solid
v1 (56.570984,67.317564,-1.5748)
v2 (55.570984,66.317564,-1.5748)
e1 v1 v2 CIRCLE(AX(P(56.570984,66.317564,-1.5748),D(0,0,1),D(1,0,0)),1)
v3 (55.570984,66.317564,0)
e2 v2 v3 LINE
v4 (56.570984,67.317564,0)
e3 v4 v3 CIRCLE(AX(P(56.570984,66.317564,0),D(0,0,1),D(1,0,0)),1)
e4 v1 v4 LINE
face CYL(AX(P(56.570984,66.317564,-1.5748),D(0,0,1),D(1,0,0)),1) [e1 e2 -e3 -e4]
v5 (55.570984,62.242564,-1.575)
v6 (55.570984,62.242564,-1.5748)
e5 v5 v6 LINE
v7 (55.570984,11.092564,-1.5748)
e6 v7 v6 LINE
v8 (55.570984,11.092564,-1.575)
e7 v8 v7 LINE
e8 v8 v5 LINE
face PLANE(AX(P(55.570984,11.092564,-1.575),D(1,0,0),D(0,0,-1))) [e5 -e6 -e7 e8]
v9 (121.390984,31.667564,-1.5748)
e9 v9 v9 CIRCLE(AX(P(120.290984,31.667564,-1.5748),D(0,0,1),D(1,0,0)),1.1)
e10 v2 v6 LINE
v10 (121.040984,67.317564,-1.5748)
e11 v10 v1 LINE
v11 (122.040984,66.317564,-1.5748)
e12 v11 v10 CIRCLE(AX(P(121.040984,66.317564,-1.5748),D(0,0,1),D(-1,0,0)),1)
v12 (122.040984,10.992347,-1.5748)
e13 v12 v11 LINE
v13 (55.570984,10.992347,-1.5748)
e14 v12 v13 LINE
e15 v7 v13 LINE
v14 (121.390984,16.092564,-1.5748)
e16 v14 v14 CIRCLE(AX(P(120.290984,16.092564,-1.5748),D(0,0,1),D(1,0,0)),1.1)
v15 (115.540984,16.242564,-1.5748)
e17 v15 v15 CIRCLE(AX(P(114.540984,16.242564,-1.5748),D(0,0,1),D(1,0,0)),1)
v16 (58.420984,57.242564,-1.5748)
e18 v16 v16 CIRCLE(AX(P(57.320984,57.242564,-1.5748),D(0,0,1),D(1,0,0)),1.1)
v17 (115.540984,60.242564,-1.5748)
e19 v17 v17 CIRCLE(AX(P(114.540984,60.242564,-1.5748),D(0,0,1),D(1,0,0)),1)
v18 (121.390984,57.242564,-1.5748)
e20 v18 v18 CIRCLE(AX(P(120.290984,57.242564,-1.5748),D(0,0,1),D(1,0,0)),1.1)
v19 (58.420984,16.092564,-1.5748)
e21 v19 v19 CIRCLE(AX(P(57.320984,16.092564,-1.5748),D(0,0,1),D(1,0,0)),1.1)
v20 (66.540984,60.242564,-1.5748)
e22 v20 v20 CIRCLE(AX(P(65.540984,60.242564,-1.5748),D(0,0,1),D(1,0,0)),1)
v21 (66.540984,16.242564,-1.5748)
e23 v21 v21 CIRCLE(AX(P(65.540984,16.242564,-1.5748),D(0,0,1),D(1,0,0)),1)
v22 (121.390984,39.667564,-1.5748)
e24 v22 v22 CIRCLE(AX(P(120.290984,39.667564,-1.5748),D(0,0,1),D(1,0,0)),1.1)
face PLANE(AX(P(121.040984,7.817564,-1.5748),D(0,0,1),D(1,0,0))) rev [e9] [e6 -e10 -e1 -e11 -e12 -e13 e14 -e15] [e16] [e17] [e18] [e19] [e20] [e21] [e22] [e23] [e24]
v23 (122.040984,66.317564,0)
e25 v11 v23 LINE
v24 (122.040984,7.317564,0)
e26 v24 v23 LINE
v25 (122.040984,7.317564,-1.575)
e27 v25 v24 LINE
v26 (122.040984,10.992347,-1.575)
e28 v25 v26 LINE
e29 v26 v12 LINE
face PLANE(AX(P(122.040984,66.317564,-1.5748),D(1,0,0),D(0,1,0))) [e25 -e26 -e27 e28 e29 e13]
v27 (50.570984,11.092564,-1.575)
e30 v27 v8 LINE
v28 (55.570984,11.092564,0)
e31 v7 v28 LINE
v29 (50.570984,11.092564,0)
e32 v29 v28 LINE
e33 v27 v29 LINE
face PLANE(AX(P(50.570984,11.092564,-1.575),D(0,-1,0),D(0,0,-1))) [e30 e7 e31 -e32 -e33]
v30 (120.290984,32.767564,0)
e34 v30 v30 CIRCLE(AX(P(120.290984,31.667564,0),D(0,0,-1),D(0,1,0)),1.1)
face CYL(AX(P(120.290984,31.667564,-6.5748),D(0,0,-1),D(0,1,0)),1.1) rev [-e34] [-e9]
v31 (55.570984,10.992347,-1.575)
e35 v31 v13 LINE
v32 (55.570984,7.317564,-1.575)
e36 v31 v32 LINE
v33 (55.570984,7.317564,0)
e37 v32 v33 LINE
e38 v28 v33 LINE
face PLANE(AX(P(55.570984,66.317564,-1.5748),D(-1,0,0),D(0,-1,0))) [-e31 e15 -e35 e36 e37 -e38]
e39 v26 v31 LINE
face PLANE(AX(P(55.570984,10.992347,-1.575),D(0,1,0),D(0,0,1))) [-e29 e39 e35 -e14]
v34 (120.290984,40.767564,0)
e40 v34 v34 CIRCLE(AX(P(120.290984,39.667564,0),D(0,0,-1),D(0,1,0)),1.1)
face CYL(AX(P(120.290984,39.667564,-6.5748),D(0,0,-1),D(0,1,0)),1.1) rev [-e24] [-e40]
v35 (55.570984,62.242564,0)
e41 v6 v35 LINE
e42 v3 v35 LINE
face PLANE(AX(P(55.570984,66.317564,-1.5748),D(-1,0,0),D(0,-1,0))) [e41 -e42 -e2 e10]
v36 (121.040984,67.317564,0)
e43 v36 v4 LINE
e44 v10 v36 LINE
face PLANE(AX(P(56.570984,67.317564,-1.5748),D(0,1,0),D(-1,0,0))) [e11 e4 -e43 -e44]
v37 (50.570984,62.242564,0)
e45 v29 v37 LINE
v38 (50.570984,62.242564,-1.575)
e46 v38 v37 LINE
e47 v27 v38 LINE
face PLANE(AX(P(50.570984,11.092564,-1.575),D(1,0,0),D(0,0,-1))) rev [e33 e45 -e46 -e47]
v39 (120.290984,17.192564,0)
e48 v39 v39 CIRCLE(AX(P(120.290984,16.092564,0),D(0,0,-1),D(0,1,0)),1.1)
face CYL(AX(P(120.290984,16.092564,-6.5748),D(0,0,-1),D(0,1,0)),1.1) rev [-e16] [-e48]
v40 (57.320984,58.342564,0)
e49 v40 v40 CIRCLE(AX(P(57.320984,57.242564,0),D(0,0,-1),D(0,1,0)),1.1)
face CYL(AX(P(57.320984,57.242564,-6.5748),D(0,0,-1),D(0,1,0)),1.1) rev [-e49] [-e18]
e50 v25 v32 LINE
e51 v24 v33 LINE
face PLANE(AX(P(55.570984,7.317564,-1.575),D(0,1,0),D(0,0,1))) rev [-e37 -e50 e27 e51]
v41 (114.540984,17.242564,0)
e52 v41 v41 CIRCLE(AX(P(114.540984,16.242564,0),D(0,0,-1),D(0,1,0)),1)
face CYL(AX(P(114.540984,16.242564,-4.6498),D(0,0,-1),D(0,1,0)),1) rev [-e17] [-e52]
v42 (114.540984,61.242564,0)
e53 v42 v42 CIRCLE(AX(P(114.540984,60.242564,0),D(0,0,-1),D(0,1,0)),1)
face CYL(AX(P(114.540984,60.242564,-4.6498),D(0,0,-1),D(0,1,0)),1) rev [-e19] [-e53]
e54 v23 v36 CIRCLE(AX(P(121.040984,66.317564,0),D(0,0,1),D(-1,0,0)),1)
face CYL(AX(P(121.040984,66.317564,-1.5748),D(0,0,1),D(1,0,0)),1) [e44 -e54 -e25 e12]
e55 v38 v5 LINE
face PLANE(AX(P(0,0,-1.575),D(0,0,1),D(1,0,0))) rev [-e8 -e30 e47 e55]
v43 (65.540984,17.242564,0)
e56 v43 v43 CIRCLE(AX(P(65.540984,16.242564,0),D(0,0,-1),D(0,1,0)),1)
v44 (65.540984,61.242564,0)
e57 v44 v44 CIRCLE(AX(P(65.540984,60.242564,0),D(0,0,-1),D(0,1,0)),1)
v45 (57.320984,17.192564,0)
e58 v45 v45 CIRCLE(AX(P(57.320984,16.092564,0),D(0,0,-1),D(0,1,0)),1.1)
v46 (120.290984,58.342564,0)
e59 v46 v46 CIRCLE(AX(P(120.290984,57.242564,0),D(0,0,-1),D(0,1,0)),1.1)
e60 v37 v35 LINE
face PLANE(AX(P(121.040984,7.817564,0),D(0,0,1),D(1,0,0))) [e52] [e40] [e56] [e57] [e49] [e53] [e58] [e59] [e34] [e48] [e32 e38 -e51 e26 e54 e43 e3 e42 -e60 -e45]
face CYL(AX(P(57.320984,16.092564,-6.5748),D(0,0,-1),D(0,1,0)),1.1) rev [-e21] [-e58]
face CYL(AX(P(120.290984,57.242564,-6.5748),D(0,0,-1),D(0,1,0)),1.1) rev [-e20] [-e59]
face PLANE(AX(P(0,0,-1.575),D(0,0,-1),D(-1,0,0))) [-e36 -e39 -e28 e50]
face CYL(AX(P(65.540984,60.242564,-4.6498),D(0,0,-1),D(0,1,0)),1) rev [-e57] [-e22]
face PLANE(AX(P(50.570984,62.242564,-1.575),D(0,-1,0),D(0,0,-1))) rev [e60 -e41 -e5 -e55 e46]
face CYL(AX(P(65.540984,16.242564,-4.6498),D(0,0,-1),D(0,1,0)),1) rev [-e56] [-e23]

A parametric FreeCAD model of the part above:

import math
import FreeCAD as App
import Part
import Sketcher
Q = App.Units.Quantity


def add_polygon(sketch, points):
    """Adds a closed chain of lines whose ends are joined by coincident constraints."""
    first, n = sketch.GeometryCount, len(points)
    for a, b in zip(points, points[1:] + points[:1]):
        sketch.addGeometry(Part.LineSegment(App.Vector(*a, 0), App.Vector(*b, 0)), False)
    for i in range(n):
        sketch.addConstraint(Sketcher.Constraint("Coincident", first + i, 2, first + (i + 1) % n, 1))

doc = App.newDocument("Part")
body = doc.addObject("PartDesign::Body", "Body")

sketch1 = body.newObject("Sketcher::SketchObject", "Sketch")
sketch1.AttachmentSupport = (doc.getObject("XY_Plane"), [""])
sketch1.MapMode = "FlatFace"
sketch1.addGeometry(Part.LineSegment(App.Vector(121.040984, 67.317564, 0), App.Vector(56.570984, 67.317564, 0)), False)
sketch1.addGeometry(Part.ArcOfCircle(Part.Circle(App.Vector(56.570984, 66.317564, 0), App.Vector(0, 0, 1), 1), math.radians(90), math.radians(180)), False)
sketch1.addGeometry(Part.LineSegment(App.Vector(55.570984, 66.317564, 0), App.Vector(55.570984, 6.817564, 0)), False)
sketch1.addGeometry(Part.LineSegment(App.Vector(55.570984, 6.817564, 0), App.Vector(121.040984, 6.817564, 0)), False)
sketch1.addGeometry(Part.ArcOfCircle(Part.Circle(App.Vector(121.040984, 7.817564, 0), App.Vector(0, 0, 1), 1), math.radians(-90), math.radians(0)), False)
sketch1.addGeometry(Part.LineSegment(App.Vector(122.040984, 7.817564, 0), App.Vector(122.040984, 66.317564, 0)), False)
sketch1.addGeometry(Part.ArcOfCircle(Part.Circle(App.Vector(121.040984, 66.317564, 0), App.Vector(0, 0, 1), 1), math.radians(0), math.radians(90)), False)
sketch1.addConstraint(Sketcher.Constraint("Tangent", 0, 2, 1, 1))
sketch1.addConstraint(Sketcher.Constraint("Tangent", 1, 2, 2, 1))
sketch1.addConstraint(Sketcher.Constraint("Coincident", 2, 2, 3, 1))
sketch1.addConstraint(Sketcher.Constraint("Tangent", 3, 2, 4, 1))
sketch1.addConstraint(Sketcher.Constraint("Tangent", 4, 2, 5, 1))
sketch1.addConstraint(Sketcher.Constraint("Tangent", 5, 2, 6, 1))
sketch1.addConstraint(Sketcher.Constraint("Tangent", 6, 2, 0, 1))
sketch1.addConstraint(Sketcher.Constraint("Horizontal", 0))
sketch1.addConstraint(Sketcher.Constraint("Vertical", 2))
sketch1.addConstraint(Sketcher.Constraint("Horizontal", 3))
sketch1.addConstraint(Sketcher.Constraint("Vertical", 5))
sketch1.addConstraint(Sketcher.Constraint("Equal", 1, 4))
sketch1.addConstraint(Sketcher.Constraint("Equal", 4, 6))
sketch1.addConstraint(Sketcher.Constraint("Radius", 1, Q("1 mm")))
sketch1.addConstraint(Sketcher.Constraint("DistanceY", 2, 2, 2, 1, Q("59.5 mm")))
sketch1.addConstraint(Sketcher.Constraint("DistanceX", 0, 2, 0, 1, Q("64.47 mm")))
sketch1.addConstraint(Sketcher.Constraint("DistanceX", -1, 1, 1, 3, Q("56.570984 mm")))
sketch1.addConstraint(Sketcher.Constraint("DistanceY", -1, 1, 1, 3, Q("66.317564 mm")))
pad1 = body.newObject("PartDesign::Pad", "Pad")
pad1.Profile = sketch1
pad1.Length = 1.5748
pad1.Reversed = True

sketch2 = body.newObject("Sketcher::SketchObject", "Sketch001")
sketch2.AttachmentSupport = (doc.getObject("XY_Plane"), [""])
sketch2.MapMode = "FlatFace"
add_polygon(sketch2, [(55.570984, 10.992347), (55.570984, 6.817564), (122.040984, 6.817564), (122.040984, 10.992347)])
sketch2.addConstraint(Sketcher.Constraint("Vertical", 0))
sketch2.addConstraint(Sketcher.Constraint("Horizontal", 1))
sketch2.addConstraint(Sketcher.Constraint("Vertical", 2))
sketch2.addConstraint(Sketcher.Constraint("Horizontal", 3))
sketch2.addConstraint(Sketcher.Constraint("DistanceX", 1, 1, 1, 2, Q("66.47 mm")))
sketch2.addConstraint(Sketcher.Constraint("DistanceY", 0, 2, 0, 1, Q("4.174783 mm")))
sketch2.addConstraint(Sketcher.Constraint("DistanceX", -1, 1, 0, 2, Q("55.570984 mm")))
sketch2.addConstraint(Sketcher.Constraint("DistanceY", -1, 1, 0, 2, Q("6.817564 mm")))
pad2 = body.newObject("PartDesign::Pad", "Pad001")
pad2.Profile = sketch2
pad2.Length = 1.575
pad2.Reversed = True

sketch3 = body.newObject("Sketcher::SketchObject", "Sketch002")
sketch3.AttachmentSupport = (doc.getObject("XY_Plane"), [""])
sketch3.MapMode = "FlatFace"
add_polygon(sketch3, [(55.570984, 7.317564), (55.570984, 6.817564), (122.040984, 6.817564), (122.040984, 7.317564)])
sketch3.addConstraint(Sketcher.Constraint("Vertical", 0))
sketch3.addConstraint(Sketcher.Constraint("Horizontal", 1))
sketch3.addConstraint(Sketcher.Constraint("Vertical", 2))
sketch3.addConstraint(Sketcher.Constraint("Horizontal", 3))
sketch3.addConstraint(Sketcher.Constraint("DistanceY", 0, 2, 0, 1, Q("0.5 mm")))
sketch3.addConstraint(Sketcher.Constraint("DistanceX", 1, 1, 1, 2, Q("66.47 mm")))
sketch3.addConstraint(Sketcher.Constraint("DistanceX", -1, 1, 0, 2, Q("55.570984 mm")))
sketch3.addConstraint(Sketcher.Constraint("DistanceY", -1, 1, 0, 2, Q("6.817564 mm")))
pocket1 = body.newObject("PartDesign::Pocket", "Pocket")
pocket1.Profile = sketch3
pocket1.Type = "ThroughAll"

sketch4 = body.newObject("Sketcher::SketchObject", "Sketch003")
sketch4.AttachmentSupport = (doc.getObject("XY_Plane"), [""])
sketch4.MapMode = "FlatFace"
sketch4.AttachmentOffset = App.Placement(App.Vector(0, 0, -6.5748), App.Rotation())
sketch4.addGeometry(Part.Circle(App.Vector(120.290984, 16.092564, 0), App.Vector(0, 0, 1), 1.1), False)
sketch4.addGeometry(Part.Circle(App.Vector(120.290984, 31.667564, 0), App.Vector(0, 0, 1), 1.1), False)
sketch4.addGeometry(Part.Circle(App.Vector(120.290984, 39.667564, 0), App.Vector(0, 0, 1), 1.1), False)
sketch4.addGeometry(Part.Circle(App.Vector(120.290984, 57.242564, 0), App.Vector(0, 0, 1), 1.1), False)
sketch4.addGeometry(Part.Circle(App.Vector(57.320984, 57.242564, 0), App.Vector(0, 0, 1), 1.1), False)
sketch4.addGeometry(Part.Circle(App.Vector(57.320984, 16.092564, 0), App.Vector(0, 0, 1), 1.1), False)
sketch4.addConstraint(Sketcher.Constraint("Equal", 0, 1))
sketch4.addConstraint(Sketcher.Constraint("Equal", 1, 2))
sketch4.addConstraint(Sketcher.Constraint("Equal", 2, 3))
sketch4.addConstraint(Sketcher.Constraint("Equal", 3, 4))
sketch4.addConstraint(Sketcher.Constraint("Equal", 4, 5))
sketch4.addConstraint(Sketcher.Constraint("Horizontal", 3, 3, 4, 3))
sketch4.addConstraint(Sketcher.Constraint("Horizontal", 0, 3, 5, 3))
sketch4.addConstraint(Sketcher.Constraint("Vertical", 0, 3, 1, 3))
sketch4.addConstraint(Sketcher.Constraint("Vertical", 1, 3, 2, 3))
sketch4.addConstraint(Sketcher.Constraint("Vertical", 2, 3, 3, 3))
sketch4.addConstraint(Sketcher.Constraint("Vertical", 4, 3, 5, 3))
sketch4.addConstraint(Sketcher.Constraint("Diameter", 0, Q("2.2 mm")))
sketch4.addConstraint(Sketcher.Constraint("DistanceY", 1, 3, 2, 3, Q("8 mm")))
sketch4.addConstraint(Sketcher.Constraint("DistanceY", 0, 3, 3, 3, Q("41.15 mm")))
sketch4.addConstraint(Sketcher.Constraint("DistanceX", 4, 3, 3, 3, Q("62.97 mm")))
sketch4.addConstraint(Sketcher.Constraint("DistanceY", 0, 3, 1, 3, Q("15.575 mm")))
sketch4.addConstraint(Sketcher.Constraint("DistanceX", -1, 1, 0, 3, Q("120.290984 mm")))
sketch4.addConstraint(Sketcher.Constraint("DistanceY", -1, 1, 0, 3, Q("16.092564 mm")))
doc.recompute()
hole = body.newObject("PartDesign::Hole", "Hole")
hole.Profile = sketch4
hole.ThreadType = "None"
hole.Diameter = 2.2
hole.DepthType = "ThroughAll"
hole.Reversed = True

sketch5 = body.newObject("Sketcher::SketchObject", "Sketch004")
sketch5.AttachmentSupport = (doc.getObject("XY_Plane"), [""])
sketch5.MapMode = "FlatFace"
sketch5.AttachmentOffset = App.Placement(App.Vector(0, 0, -4.6498), App.Rotation())
sketch5.addGeometry(Part.Circle(App.Vector(65.540984, 16.242564, 0), App.Vector(0, 0, 1), 1), False)
sketch5.addGeometry(Part.Circle(App.Vector(65.540984, 60.242564, 0), App.Vector(0, 0, 1), 1), False)
sketch5.addGeometry(Part.Circle(App.Vector(114.540984, 60.242564, 0), App.Vector(0, 0, 1), 1), False)
sketch5.addGeometry(Part.Circle(App.Vector(114.540984, 16.242564, 0), App.Vector(0, 0, 1), 1), False)
sketch5.addConstraint(Sketcher.Constraint("Equal", 0, 1))
sketch5.addConstraint(Sketcher.Constraint("Equal", 1, 2))
sketch5.addConstraint(Sketcher.Constraint("Equal", 2, 3))
sketch5.addConstraint(Sketcher.Constraint("Horizontal", 1, 3, 2, 3))
sketch5.addConstraint(Sketcher.Constraint("Horizontal", 0, 3, 3, 3))
sketch5.addConstraint(Sketcher.Constraint("Vertical", 0, 3, 1, 3))
sketch5.addConstraint(Sketcher.Constraint("Vertical", 2, 3, 3, 3))
sketch5.addConstraint(Sketcher.Constraint("Diameter", 0, Q("2 mm")))
sketch5.addConstraint(Sketcher.Constraint("DistanceY", 0, 3, 1, 3, Q("44 mm")))
sketch5.addConstraint(Sketcher.Constraint("DistanceX", 1, 3, 2, 3, Q("49 mm")))
sketch5.addConstraint(Sketcher.Constraint("DistanceX", -1, 1, 0, 3, Q("65.540984 mm")))
sketch5.addConstraint(Sketcher.Constraint("DistanceY", -1, 1, 0, 3, Q("16.242564 mm")))
doc.recompute()
hole2 = body.newObject("PartDesign::Hole", "Hole001")
hole2.Profile = sketch5
hole2.ThreadType = "None"
hole2.Diameter = 2
hole2.DepthType = "ThroughAll"
hole2.Reversed = True

sketch6 = body.newObject("Sketcher::SketchObject", "Sketch005")
sketch6.AttachmentSupport = (doc.getObject("XY_Plane"), [""])
sketch6.MapMode = "FlatFace"
add_polygon(sketch6, [(50.570984, 62.242564), (50.570984, 11.092564), (55.570984, 11.092564), (55.570984, 62.242564)])
sketch6.addConstraint(Sketcher.Constraint("Vertical", 0))
sketch6.addConstraint(Sketcher.Constraint("Horizontal", 1))
sketch6.addConstraint(Sketcher.Constraint("Vertical", 2))
sketch6.addConstraint(Sketcher.Constraint("Horizontal", 3))
sketch6.addConstraint(Sketcher.Constraint("DistanceX", 1, 1, 1, 2, Q("5 mm")))
sketch6.addConstraint(Sketcher.Constraint("DistanceY", 0, 2, 0, 1, Q("51.15 mm")))
sketch6.addConstraint(Sketcher.Constraint("DistanceX", -1, 1, 0, 2, Q("50.570984 mm")))
sketch6.addConstraint(Sketcher.Constraint("DistanceY", -1, 1, 0, 2, Q("11.092564 mm")))
pad3 = body.newObject("PartDesign::Pad", "Pad002")
pad3.Profile = sketch6
pad3.Length = 1.575
pad3.Reversed = True

doc.recompute()
